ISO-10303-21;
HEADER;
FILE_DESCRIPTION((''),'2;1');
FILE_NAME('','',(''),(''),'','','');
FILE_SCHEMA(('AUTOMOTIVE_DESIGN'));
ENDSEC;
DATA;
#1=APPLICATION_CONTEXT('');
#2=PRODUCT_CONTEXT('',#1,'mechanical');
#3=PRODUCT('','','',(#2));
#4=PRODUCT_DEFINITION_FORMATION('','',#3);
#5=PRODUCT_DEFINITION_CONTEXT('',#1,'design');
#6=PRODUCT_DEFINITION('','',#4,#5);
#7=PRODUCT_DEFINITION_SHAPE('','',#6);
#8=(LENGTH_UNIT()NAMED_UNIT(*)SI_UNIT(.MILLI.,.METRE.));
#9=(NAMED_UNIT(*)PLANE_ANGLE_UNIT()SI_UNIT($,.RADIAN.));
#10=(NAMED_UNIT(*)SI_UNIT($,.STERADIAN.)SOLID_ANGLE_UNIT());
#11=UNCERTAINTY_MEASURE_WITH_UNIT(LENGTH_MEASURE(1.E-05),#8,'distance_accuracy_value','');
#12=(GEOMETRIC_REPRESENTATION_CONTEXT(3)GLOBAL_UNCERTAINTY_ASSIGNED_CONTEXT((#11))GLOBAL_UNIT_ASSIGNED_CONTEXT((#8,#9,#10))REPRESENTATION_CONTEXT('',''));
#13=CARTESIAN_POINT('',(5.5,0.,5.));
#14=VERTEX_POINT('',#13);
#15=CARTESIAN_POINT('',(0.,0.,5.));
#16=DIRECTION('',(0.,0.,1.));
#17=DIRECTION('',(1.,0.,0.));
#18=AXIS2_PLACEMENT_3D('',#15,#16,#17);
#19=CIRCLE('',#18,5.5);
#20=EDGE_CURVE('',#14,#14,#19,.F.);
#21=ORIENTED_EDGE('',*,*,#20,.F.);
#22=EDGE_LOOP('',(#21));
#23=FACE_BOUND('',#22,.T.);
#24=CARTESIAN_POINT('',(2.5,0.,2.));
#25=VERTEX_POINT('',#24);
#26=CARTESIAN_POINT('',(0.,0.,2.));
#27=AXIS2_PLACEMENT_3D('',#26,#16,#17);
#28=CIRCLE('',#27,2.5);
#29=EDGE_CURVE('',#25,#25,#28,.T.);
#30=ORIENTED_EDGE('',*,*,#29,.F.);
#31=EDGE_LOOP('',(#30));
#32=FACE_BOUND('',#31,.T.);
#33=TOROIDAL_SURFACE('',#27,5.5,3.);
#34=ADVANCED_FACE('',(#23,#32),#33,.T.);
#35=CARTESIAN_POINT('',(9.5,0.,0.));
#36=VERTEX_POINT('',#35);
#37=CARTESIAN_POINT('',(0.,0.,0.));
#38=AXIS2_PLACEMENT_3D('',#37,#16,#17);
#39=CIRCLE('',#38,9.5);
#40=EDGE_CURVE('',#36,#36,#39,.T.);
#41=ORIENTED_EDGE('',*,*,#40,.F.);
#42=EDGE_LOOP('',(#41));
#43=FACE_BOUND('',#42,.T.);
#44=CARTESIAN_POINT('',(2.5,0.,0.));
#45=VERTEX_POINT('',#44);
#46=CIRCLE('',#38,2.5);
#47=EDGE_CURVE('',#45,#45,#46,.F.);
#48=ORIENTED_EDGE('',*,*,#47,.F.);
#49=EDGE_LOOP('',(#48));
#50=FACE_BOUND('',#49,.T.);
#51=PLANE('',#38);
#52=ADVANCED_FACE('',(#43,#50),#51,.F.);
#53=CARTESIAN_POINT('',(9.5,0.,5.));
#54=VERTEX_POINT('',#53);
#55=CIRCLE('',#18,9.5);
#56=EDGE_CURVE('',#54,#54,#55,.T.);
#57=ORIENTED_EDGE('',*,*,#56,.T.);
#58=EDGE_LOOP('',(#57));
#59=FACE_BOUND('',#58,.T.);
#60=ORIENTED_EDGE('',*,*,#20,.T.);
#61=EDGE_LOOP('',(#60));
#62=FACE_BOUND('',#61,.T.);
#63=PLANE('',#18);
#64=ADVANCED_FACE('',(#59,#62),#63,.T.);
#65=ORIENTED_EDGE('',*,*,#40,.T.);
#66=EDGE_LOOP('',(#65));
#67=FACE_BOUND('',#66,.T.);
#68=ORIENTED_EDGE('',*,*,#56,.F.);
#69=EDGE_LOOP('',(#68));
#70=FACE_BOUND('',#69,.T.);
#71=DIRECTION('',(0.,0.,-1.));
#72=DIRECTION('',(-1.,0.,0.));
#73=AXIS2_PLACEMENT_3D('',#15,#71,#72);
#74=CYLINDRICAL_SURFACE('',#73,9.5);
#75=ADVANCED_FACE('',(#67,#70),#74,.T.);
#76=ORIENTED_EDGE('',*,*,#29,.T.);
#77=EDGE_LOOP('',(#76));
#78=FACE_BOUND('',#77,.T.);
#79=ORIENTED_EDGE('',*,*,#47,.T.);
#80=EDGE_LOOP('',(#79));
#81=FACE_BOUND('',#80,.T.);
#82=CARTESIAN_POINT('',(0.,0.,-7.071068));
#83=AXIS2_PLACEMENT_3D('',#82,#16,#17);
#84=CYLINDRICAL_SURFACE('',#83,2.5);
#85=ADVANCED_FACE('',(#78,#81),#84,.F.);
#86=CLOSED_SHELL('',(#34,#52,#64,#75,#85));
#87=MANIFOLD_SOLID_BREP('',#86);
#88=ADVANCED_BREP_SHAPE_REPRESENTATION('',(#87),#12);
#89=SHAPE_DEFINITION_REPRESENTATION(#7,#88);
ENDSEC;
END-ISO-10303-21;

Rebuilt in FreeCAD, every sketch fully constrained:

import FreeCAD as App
import Part
import Sketcher

V = App.Vector


def edges_at(feature, points):
    """Names of the edges that pass closest to the given points."""
    edges = feature.Shape.Edges
    near = lambda p: min(range(len(edges)), key=lambda i: edges[i].distToShape(Part.Vertex(*p))[0])
    return sorted({f"Edge{near(p) + 1}" for p in points})

doc = App.newDocument("Part")
body = doc.addObject("PartDesign::Body", "Body")

# Sketch on XY plane
sketch1 = doc.addObject("Sketcher::SketchObject", "Sketch")
body.addObject(sketch1)
sketch1.AttachmentSupport = (doc.XY_Plane, [""])
sketch1.MapMode = "FlatFace"
sketch1.addGeometry(Part.Circle(V(0, 0, 0), V(0, 0, 1), 10), False)
sketch1.addConstraint(Sketcher.Constraint("Coincident", 0, 3, -1, 1))
sketch1.addConstraint(Sketcher.Constraint("Diameter", 0, 19.0))
pad1 = doc.addObject("PartDesign::Pad", "Pad")
body.addObject(pad1)
pad1.Profile = sketch1
pad1.Length = 5

# Sketch on XY plane
sketch2 = doc.addObject("Sketcher::SketchObject", "Sketch001")
body.addObject(sketch2)
sketch2.AttachmentSupport = (doc.XY_Plane, [""])
sketch2.MapMode = "FlatFace"
sketch2.AttachmentOffset = App.Placement(V(0, 0, 5), App.Rotation())
sketch2.addGeometry(Part.Circle(V(0, 0, 0), V(0, 0, 1), 2.5), False)
sketch2.addConstraint(Sketcher.Constraint("Coincident", 0, 3, -1, 1))
sketch2.addConstraint(Sketcher.Constraint("Diameter", 0, 5.0))
pocket1 = doc.addObject("PartDesign::Pocket", "Pocket")
body.addObject(pocket1)
pocket1.Profile = sketch2
pocket1.Length = 5
doc.recompute()

fillet = doc.addObject("PartDesign::Fillet", "Fillet")
body.addObject(fillet)
fillet.Base = (pocket1, edges_at(pocket1, [(-2.5, 0, 5)]))
fillet.Radius = 3

doc.recompute()
